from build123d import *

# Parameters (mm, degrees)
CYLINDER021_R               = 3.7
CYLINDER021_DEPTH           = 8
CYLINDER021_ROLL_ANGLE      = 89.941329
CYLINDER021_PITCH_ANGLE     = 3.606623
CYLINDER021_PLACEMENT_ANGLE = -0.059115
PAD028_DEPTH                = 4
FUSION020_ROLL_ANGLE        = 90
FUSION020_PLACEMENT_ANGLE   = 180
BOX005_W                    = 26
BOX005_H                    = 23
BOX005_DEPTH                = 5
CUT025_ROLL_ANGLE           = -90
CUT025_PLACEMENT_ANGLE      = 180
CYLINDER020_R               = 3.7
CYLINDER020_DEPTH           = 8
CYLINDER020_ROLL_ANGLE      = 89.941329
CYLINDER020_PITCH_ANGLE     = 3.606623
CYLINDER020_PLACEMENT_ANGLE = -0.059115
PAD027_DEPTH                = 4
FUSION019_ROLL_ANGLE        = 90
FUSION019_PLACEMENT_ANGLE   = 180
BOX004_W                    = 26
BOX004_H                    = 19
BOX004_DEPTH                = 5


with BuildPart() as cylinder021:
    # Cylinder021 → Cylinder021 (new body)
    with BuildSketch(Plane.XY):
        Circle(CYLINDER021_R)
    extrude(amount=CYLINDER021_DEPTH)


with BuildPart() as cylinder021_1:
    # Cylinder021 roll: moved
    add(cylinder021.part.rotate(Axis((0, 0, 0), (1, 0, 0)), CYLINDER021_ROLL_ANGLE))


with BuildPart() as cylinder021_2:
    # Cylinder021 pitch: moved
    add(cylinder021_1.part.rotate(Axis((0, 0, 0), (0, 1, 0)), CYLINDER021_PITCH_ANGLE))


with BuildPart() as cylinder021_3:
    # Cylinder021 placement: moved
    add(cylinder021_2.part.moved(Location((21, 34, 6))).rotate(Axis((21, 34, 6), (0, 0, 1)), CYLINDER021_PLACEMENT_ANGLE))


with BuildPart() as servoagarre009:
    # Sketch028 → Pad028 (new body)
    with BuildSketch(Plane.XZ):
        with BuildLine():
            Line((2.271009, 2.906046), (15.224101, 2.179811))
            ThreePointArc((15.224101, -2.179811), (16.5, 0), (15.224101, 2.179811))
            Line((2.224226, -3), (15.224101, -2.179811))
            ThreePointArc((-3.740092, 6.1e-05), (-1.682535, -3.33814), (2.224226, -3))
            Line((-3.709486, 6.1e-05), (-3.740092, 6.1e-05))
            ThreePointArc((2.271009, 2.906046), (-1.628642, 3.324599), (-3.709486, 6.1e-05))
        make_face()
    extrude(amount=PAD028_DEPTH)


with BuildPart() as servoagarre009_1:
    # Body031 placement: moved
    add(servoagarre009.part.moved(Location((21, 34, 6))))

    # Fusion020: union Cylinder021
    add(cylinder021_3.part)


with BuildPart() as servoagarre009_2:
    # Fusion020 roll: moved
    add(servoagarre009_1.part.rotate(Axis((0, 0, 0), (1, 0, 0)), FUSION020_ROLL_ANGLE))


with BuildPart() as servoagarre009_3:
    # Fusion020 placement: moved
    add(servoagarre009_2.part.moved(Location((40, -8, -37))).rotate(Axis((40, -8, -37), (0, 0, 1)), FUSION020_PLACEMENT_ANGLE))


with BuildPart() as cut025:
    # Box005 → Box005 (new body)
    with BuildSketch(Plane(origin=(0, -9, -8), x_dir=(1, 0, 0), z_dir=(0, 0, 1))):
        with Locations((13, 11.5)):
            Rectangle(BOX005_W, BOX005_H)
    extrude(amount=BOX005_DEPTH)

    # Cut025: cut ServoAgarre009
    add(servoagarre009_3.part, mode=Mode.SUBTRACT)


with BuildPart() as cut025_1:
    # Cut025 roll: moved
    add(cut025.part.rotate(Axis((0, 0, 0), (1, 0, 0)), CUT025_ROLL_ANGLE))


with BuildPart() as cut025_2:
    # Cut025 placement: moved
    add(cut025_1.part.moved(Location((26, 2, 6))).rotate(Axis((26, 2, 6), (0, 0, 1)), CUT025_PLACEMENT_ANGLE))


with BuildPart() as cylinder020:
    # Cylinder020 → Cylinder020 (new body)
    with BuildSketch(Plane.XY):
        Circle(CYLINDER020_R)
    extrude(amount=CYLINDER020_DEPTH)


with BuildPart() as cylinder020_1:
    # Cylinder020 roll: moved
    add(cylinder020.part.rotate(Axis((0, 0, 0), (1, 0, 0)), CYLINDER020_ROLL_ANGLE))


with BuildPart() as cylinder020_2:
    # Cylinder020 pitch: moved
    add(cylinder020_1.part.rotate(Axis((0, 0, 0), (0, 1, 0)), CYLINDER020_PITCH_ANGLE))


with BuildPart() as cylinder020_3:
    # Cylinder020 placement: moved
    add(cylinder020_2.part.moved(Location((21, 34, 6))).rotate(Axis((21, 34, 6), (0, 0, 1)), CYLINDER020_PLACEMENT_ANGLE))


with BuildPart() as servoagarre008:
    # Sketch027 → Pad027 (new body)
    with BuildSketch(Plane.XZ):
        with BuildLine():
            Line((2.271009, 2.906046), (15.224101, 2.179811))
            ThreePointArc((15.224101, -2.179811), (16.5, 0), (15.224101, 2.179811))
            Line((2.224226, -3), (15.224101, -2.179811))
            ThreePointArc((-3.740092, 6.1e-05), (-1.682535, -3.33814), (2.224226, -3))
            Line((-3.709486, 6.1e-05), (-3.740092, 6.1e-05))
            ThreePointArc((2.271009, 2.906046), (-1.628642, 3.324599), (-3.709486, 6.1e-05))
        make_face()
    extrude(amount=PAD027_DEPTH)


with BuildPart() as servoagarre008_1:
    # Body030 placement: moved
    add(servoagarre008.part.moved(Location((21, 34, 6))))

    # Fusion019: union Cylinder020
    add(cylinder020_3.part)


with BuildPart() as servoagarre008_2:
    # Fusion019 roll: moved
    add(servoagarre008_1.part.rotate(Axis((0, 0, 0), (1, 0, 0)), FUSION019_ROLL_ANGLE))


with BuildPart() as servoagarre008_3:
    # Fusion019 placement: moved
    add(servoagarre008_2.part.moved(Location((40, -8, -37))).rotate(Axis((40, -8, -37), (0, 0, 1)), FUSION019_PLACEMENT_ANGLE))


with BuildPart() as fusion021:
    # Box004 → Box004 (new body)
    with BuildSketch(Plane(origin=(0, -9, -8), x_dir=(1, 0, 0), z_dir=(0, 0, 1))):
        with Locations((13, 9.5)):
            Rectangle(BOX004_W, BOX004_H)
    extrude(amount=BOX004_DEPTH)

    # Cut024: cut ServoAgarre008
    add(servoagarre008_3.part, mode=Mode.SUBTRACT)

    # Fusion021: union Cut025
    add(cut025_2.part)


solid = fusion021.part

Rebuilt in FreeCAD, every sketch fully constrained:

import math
import FreeCAD as App
import Part
import Sketcher
from FreeCAD import Vector
Q = App.Units.Quantity


def add_polygon(sketch, points):
    """Adds a closed chain of lines whose ends are joined by coincident constraints."""
    first, n = sketch.GeometryCount, len(points)
    for a, b in zip(points, points[1:] + points[:1]):
        sketch.addGeometry(Part.LineSegment(App.Vector(*a, 0), App.Vector(*b, 0)), False)
    for i in range(n):
        sketch.addConstraint(Sketcher.Constraint("Coincident", first + i, 2, first + (i + 1) % n, 1))

doc = App.newDocument("Part")
params = doc.addObject("Spreadsheet::Sheet", "Params")
for row, (alias, value) in enumerate([
    ("sketch1_diameter", "7.4 mm"),
    ("pad1_length", "8 mm"),
    ("sketch2_radius", "2.5 mm"),
    ("pad2_length", "4 mm"),
    ("sketch3_width", "26 mm"),
    ("sketch3_height", "23 mm"),
    ("pad3_length", "5 mm"),
    ("sketch4_diameter", "7.4 mm"),
    ("pad4_length", "8 mm"),
    ("sketch5_radius", "2.5 mm"),
    ("pad5_length", "4 mm"),
    ("sketch6_width", "26 mm"),
    ("sketch6_height", "19 mm"),
    ("pad6_length", "5 mm"),
], start=1):
    params.set(f"A{row}", alias)
    params.set(f"B{row}", "=" + value)
    params.setAlias(f"B{row}", alias)

body = doc.addObject("PartDesign::Body", "Body")

sketch1 = body.newObject("Sketcher::SketchObject", "Sketch")
sketch1.AttachmentSupport = (doc.getObject("XY_Plane"), [""])
sketch1.MapMode = "FlatFace"
sketch1.addGeometry(Part.Circle(Vector(0, 0, 0), Vector(0, 0, 1), 3.7), False)
sketch1.addConstraint([
    Sketcher.Constraint("Coincident", 0, 3, -1, 1),
    Sketcher.Constraint("Diameter", 0, Q("7.4 mm")),
])
sketch1.setExpression("Constraints[1]", "Params.sketch1_diameter")
pad1 = body.newObject("PartDesign::Pad", "Pad")
pad1.Profile = sketch1
pad1.setExpression("Length", "Params.pad1_length")
body2 = doc.addObject("PartDesign::Body", "Body001")
doc.recompute()

body.Placement = App.Placement(Vector(0, 0, 0), App.Rotation(Vector(1, 0, 0), 89.941329))
boolean = body2.newObject("PartDesign::Boolean", "Boolean")
boolean.Type = "Fuse"
boolean.addObjects([body])
body3 = doc.addObject("PartDesign::Body", "Body002")
doc.recompute()

body2.Placement = App.Placement(Vector(0, 0, 0), App.Rotation(Vector(0, 1, 0), 3.606623))
boolean2 = body3.newObject("PartDesign::Boolean", "Boolean001")
boolean2.Type = "Fuse"
boolean2.addObjects([body2])
body4 = doc.addObject("PartDesign::Body", "Body003")
doc.recompute()

body3.Placement = App.Placement(Vector(21, 34, 6), App.Rotation(Vector(0, 0, 1), 359.940885))
boolean3 = body4.newObject("PartDesign::Boolean", "Boolean002")
boolean3.Type = "Fuse"
boolean3.addObjects([body3])
body5 = doc.addObject("PartDesign::Body", "Body004")

sketch2 = body5.newObject("Sketcher::SketchObject", "Sketch001")
sketch2.AttachmentSupport = (doc.getObject("XZ_Plane004"), [""])
sketch2.MapMode = "FlatFace"
sketch2.addGeometry([
    Part.LineSegment(Vector(15.224, 2.18, 0), Vector(2.271, 2.906, 0)),
    Part.ArcOfCircle(Part.Circle(Vector(-0.013, 0, 0), Vector(0, 0, 1), 3.696), math.radians(52), math.radians(180)),
    Part.LineSegment(Vector(-3.709, 0, 0), Vector(-3.74, 0, 0)),
    Part.ArcOfCircle(Part.Circle(Vector(-0.003, 0, 0), Vector(0, 0, 1), 3.737), math.radians(180), math.radians(307)),
    Part.LineSegment(Vector(2.224, -3, 0), Vector(15.224, -2.18, 0)),
    Part.ArcOfCircle(Part.Circle(Vector(14, 0, 0), Vector(0, 0, 1), 2.5), math.radians(-61), math.radians(61)),
], False)
sketch2.addConstraint([
    Sketcher.Constraint("Coincident", 0, 2, 1, 1),
    Sketcher.Constraint("Coincident", 1, 2, 2, 1),
    Sketcher.Constraint("Coincident", 2, 2, 3, 1),
    Sketcher.Constraint("Coincident", 3, 2, 4, 1),
    Sketcher.Constraint("Coincident", 4, 2, 5, 1),
    Sketcher.Constraint("Coincident", 5, 2, 0, 1),
    Sketcher.Constraint("Horizontal", 2),
    Sketcher.Constraint("Symmetric", 4, 2, 5, 2, -1),
    Sketcher.Constraint("PointOnObject", 3, 3, -1),
    Sketcher.Constraint("Radius", 5, Q("2.5 mm")),
    Sketcher.Constraint("DistanceX", -1, 1, 5, 3, Q("14 mm")),
    Sketcher.Constraint("DistanceY", 3, 2, -1, 1, Q("3 mm")),
    Sketcher.Constraint("Radius", 1, Q("3.6963 mm")),
    Sketcher.Constraint("Radius", 3, Q("3.736646 mm")),
    Sketcher.Constraint("DistanceX", -1, 1, 4, 2, Q("15.224101 mm")),
    Sketcher.Constraint("DistanceX", 2, 2, 0, 2, Q("6.011101 mm")),
    Sketcher.Constraint("DistanceX", 2, 2, 2, 1, Q("0.030606 mm")),
    Sketcher.Constraint("DistanceX", -1, 1, 0, 2, Q("2.271009 mm")),
    Sketcher.Constraint("DistanceY", 3, 2, 1, 2, Q("3.000061 mm")),
    Sketcher.Constraint("Distance", 0, Q("12.973435 mm")),
])
sketch2.setExpression("Constraints[9]", "Params.sketch2_radius")
pad2 = body5.newObject("PartDesign::Pad", "Pad001")
pad2.Profile = sketch2
pad2.setExpression("Length", "Params.pad2_length")
body6 = doc.addObject("PartDesign::Body", "Body005")
doc.recompute()

body5.Placement = App.Placement(Vector(21, 34, 6), App.Rotation(Vector(0, 0, 1), 0))
boolean4 = body6.newObject("PartDesign::Boolean", "Boolean003")
boolean4.Type = "Fuse"
boolean4.addObjects([body5])
doc.recompute()

boolean5 = body6.newObject("PartDesign::Boolean", "Boolean004")
boolean5.Type = "Fuse"
boolean5.addObjects([body4])
body7 = doc.addObject("PartDesign::Body", "Body006")
doc.recompute()

body6.Placement = App.Placement(Vector(0, 0, 0), App.Rotation(Vector(1, 0, 0), 90))
boolean6 = body7.newObject("PartDesign::Boolean", "Boolean005")
boolean6.Type = "Fuse"
boolean6.addObjects([body6])
body8 = doc.addObject("PartDesign::Body", "Body007")
doc.recompute()

body7.Placement = App.Placement(Vector(40, -8, -37), App.Rotation(Vector(0, 0, 1), 180))
boolean7 = body8.newObject("PartDesign::Boolean", "Boolean006")
boolean7.Type = "Fuse"
boolean7.addObjects([body7])
body9 = doc.addObject("PartDesign::Body", "Body008")

sketch3 = body9.newObject("Sketcher::SketchObject", "Sketch002")
sketch3.AttachmentSupport = (doc.getObject("XY_Plane008"), [""])
sketch3.MapMode = "FlatFace"
sketch3.AttachmentOffset = App.Placement(Vector(0, 0, -8), App.Rotation())
add_polygon(sketch3, [(0, 14), (0, -9), (26, -9), (26, 14)])
sketch3.addConstraint([
    Sketcher.Constraint("Vertical", 0),
    Sketcher.Constraint("Horizontal", 1),
    Sketcher.Constraint("Vertical", 2),
    Sketcher.Constraint("Horizontal", 3),
    Sketcher.Constraint("PointOnObject", 0, 2, -2),
    Sketcher.Constraint("DistanceX", 1, 1, 1, 2, Q("26 mm")),
    Sketcher.Constraint("DistanceY", 0, 2, 0, 1, Q("23 mm")),
    Sketcher.Constraint("DistanceY", 0, 2, -1, 1, Q("9 mm")),
])
sketch3.setExpression("Constraints[9]", "Params.sketch3_width")
sketch3.setExpression("Constraints[10]", "Params.sketch3_height")
pad3 = body9.newObject("PartDesign::Pad", "Pad002")
pad3.Profile = sketch3
pad3.setExpression("Length", "Params.pad3_length")
doc.recompute()

boolean8 = body9.newObject("PartDesign::Boolean", "Boolean007")
boolean8.Type = "Cut"
boolean8.addObjects([body8])
body10 = doc.addObject("PartDesign::Body", "Body009")
doc.recompute()

body9.Placement = App.Placement(Vector(0, 0, 0), App.Rotation(Vector(1, 0, 0), 270))
boolean9 = body10.newObject("PartDesign::Boolean", "Boolean008")
boolean9.Type = "Fuse"
boolean9.addObjects([body9])
body11 = doc.addObject("PartDesign::Body", "Body010")
doc.recompute()

body10.Placement = App.Placement(Vector(26, 2, 6), App.Rotation(Vector(0, 0, 1), 180))
boolean10 = body11.newObject("PartDesign::Boolean", "Boolean009")
boolean10.Type = "Fuse"
boolean10.addObjects([body10])
body12 = doc.addObject("PartDesign::Body", "Body011")

sketch4 = body12.newObject("Sketcher::SketchObject", "Sketch003")
sketch4.AttachmentSupport = (doc.getObject("XY_Plane011"), [""])
sketch4.MapMode = "FlatFace"
sketch4.addGeometry(Part.Circle(Vector(0, 0, 0), Vector(0, 0, 1), 3.7), False)
sketch4.addConstraint([
    Sketcher.Constraint("Coincident", 0, 3, -1, 1),
    Sketcher.Constraint("Diameter", 0, Q("7.4 mm")),
])
sketch4.setExpression("Constraints[1]", "Params.sketch4_diameter")
pad4 = body12.newObject("PartDesign::Pad", "Pad003")
pad4.Profile = sketch4
pad4.setExpression("Length", "Params.pad4_length")
body13 = doc.addObject("PartDesign::Body", "Body012")
doc.recompute()

body12.Placement = App.Placement(Vector(0, 0, 0), App.Rotation(Vector(1, 0, 0), 89.941329))
boolean11 = body13.newObject("PartDesign::Boolean", "Boolean010")
boolean11.Type = "Fuse"
boolean11.addObjects([body12])
body14 = doc.addObject("PartDesign::Body", "Body013")
doc.recompute()

body13.Placement = App.Placement(Vector(0, 0, 0), App.Rotation(Vector(0, 1, 0), 3.606623))
boolean12 = body14.newObject("PartDesign::Boolean", "Boolean011")
boolean12.Type = "Fuse"
boolean12.addObjects([body13])
body15 = doc.addObject("PartDesign::Body", "Body014")
doc.recompute()

body14.Placement = App.Placement(Vector(21, 34, 6), App.Rotation(Vector(0, 0, 1), 359.940885))
boolean13 = body15.newObject("PartDesign::Boolean", "Boolean012")
boolean13.Type = "Fuse"
boolean13.addObjects([body14])
body16 = doc.addObject("PartDesign::Body", "Body015")

sketch5 = body16.newObject("Sketcher::SketchObject", "Sketch004")
sketch5.AttachmentSupport = (doc.getObject("XZ_Plane015"), [""])
sketch5.MapMode = "FlatFace"
sketch5.addGeometry([
    Part.LineSegment(Vector(15.224, 2.18, 0), Vector(2.271, 2.906, 0)),
    Part.ArcOfCircle(Part.Circle(Vector(-0.013, 0, 0), Vector(0, 0, 1), 3.696), math.radians(52), math.radians(180)),
    Part.LineSegment(Vector(-3.709, 0, 0), Vector(-3.74, 0, 0)),
    Part.ArcOfCircle(Part.Circle(Vector(-0.003, 0, 0), Vector(0, 0, 1), 3.737), math.radians(180), math.radians(307)),
    Part.LineSegment(Vector(2.224, -3, 0), Vector(15.224, -2.18, 0)),
    Part.ArcOfCircle(Part.Circle(Vector(14, 0, 0), Vector(0, 0, 1), 2.5), math.radians(-61), math.radians(61)),
], False)
sketch5.addConstraint([
    Sketcher.Constraint("Coincident", 0, 2, 1, 1),
    Sketcher.Constraint("Coincident", 1, 2, 2, 1),
    Sketcher.Constraint("Coincident", 2, 2, 3, 1),
    Sketcher.Constraint("Coincident", 3, 2, 4, 1),
    Sketcher.Constraint("Coincident", 4, 2, 5, 1),
    Sketcher.Constraint("Coincident", 5, 2, 0, 1),
    Sketcher.Constraint("Horizontal", 2),
    Sketcher.Constraint("Symmetric", 4, 2, 5, 2, -1),
    Sketcher.Constraint("PointOnObject", 3, 3, -1),
    Sketcher.Constraint("Radius", 5, Q("2.5 mm")),
    Sketcher.Constraint("DistanceX", -1, 1, 5, 3, Q("14 mm")),
    Sketcher.Constraint("DistanceY", 3, 2, -1, 1, Q("3 mm")),
    Sketcher.Constraint("Radius", 1, Q("3.6963 mm")),
    Sketcher.Constraint("Radius", 3, Q("3.736646 mm")),
    Sketcher.Constraint("DistanceX", -1, 1, 4, 2, Q("15.224101 mm")),
    Sketcher.Constraint("DistanceX", 2, 2, 0, 2, Q("6.011101 mm")),
    Sketcher.Constraint("DistanceX", 2, 2, 2, 1, Q("0.030606 mm")),
    Sketcher.Constraint("DistanceX", -1, 1, 0, 2, Q("2.271009 mm")),
    Sketcher.Constraint("DistanceY", 3, 2, 1, 2, Q("3.000061 mm")),
    Sketcher.Constraint("Distance", 0, Q("12.973435 mm")),
])
sketch5.setExpression("Constraints[9]", "Params.sketch5_radius")
pad5 = body16.newObject("PartDesign::Pad", "Pad004")
pad5.Profile = sketch5
pad5.setExpression("Length", "Params.pad5_length")
body17 = doc.addObject("PartDesign::Body", "Body016")
doc.recompute()

body16.Placement = App.Placement(Vector(21, 34, 6), App.Rotation(Vector(0, 0, 1), 0))
boolean14 = body17.newObject("PartDesign::Boolean", "Boolean013")
boolean14.Type = "Fuse"
boolean14.addObjects([body16])
doc.recompute()

boolean15 = body17.newObject("PartDesign::Boolean", "Boolean014")
boolean15.Type = "Fuse"
boolean15.addObjects([body15])
body18 = doc.addObject("PartDesign::Body", "Body017")
doc.recompute()

body17.Placement = App.Placement(Vector(0, 0, 0), App.Rotation(Vector(1, 0, 0), 90))
boolean16 = body18.newObject("PartDesign::Boolean", "Boolean015")
boolean16.Type = "Fuse"
boolean16.addObjects([body17])
body19 = doc.addObject("PartDesign::Body", "Body018")
doc.recompute()

body18.Placement = App.Placement(Vector(40, -8, -37), App.Rotation(Vector(0, 0, 1), 180))
boolean17 = body19.newObject("PartDesign::Boolean", "Boolean016")
boolean17.Type = "Fuse"
boolean17.addObjects([body18])
body20 = doc.addObject("PartDesign::Body", "Body019")

sketch6 = body20.newObject("Sketcher::SketchObject", "Sketch005")
sketch6.AttachmentSupport = (doc.getObject("XY_Plane019"), [""])
sketch6.MapMode = "FlatFace"
sketch6.AttachmentOffset = App.Placement(Vector(0, 0, -8), App.Rotation())
add_polygon(sketch6, [(0, 10), (0, -9), (26, -9), (26, 10)])
sketch6.addConstraint([
    Sketcher.Constraint("Vertical", 0),
    Sketcher.Constraint("Horizontal", 1),
    Sketcher.Constraint("Vertical", 2),
    Sketcher.Constraint("Horizontal", 3),
    Sketcher.Constraint("PointOnObject", 0, 2, -2),
    Sketcher.Constraint("DistanceX", 1, 1, 1, 2, Q("26 mm")),
    Sketcher.Constraint("DistanceY", 0, 2, 0, 1, Q("19 mm")),
    Sketcher.Constraint("DistanceY", 0, 2, -1, 1, Q("9 mm")),
])
sketch6.setExpression("Constraints[9]", "Params.sketch6_width")
sketch6.setExpression("Constraints[10]", "Params.sketch6_height")
pad6 = body20.newObject("PartDesign::Pad", "Pad005")
pad6.Profile = sketch6
pad6.setExpression("Length", "Params.pad6_length")
doc.recompute()

boolean18 = body20.newObject("PartDesign::Boolean", "Boolean017")
boolean18.Type = "Cut"
boolean18.addObjects([body19])
doc.recompute()

boolean19 = body20.newObject("PartDesign::Boolean", "Boolean018")
boolean19.Type = "Fuse"
boolean19.addObjects([body11])

doc.recompute()
